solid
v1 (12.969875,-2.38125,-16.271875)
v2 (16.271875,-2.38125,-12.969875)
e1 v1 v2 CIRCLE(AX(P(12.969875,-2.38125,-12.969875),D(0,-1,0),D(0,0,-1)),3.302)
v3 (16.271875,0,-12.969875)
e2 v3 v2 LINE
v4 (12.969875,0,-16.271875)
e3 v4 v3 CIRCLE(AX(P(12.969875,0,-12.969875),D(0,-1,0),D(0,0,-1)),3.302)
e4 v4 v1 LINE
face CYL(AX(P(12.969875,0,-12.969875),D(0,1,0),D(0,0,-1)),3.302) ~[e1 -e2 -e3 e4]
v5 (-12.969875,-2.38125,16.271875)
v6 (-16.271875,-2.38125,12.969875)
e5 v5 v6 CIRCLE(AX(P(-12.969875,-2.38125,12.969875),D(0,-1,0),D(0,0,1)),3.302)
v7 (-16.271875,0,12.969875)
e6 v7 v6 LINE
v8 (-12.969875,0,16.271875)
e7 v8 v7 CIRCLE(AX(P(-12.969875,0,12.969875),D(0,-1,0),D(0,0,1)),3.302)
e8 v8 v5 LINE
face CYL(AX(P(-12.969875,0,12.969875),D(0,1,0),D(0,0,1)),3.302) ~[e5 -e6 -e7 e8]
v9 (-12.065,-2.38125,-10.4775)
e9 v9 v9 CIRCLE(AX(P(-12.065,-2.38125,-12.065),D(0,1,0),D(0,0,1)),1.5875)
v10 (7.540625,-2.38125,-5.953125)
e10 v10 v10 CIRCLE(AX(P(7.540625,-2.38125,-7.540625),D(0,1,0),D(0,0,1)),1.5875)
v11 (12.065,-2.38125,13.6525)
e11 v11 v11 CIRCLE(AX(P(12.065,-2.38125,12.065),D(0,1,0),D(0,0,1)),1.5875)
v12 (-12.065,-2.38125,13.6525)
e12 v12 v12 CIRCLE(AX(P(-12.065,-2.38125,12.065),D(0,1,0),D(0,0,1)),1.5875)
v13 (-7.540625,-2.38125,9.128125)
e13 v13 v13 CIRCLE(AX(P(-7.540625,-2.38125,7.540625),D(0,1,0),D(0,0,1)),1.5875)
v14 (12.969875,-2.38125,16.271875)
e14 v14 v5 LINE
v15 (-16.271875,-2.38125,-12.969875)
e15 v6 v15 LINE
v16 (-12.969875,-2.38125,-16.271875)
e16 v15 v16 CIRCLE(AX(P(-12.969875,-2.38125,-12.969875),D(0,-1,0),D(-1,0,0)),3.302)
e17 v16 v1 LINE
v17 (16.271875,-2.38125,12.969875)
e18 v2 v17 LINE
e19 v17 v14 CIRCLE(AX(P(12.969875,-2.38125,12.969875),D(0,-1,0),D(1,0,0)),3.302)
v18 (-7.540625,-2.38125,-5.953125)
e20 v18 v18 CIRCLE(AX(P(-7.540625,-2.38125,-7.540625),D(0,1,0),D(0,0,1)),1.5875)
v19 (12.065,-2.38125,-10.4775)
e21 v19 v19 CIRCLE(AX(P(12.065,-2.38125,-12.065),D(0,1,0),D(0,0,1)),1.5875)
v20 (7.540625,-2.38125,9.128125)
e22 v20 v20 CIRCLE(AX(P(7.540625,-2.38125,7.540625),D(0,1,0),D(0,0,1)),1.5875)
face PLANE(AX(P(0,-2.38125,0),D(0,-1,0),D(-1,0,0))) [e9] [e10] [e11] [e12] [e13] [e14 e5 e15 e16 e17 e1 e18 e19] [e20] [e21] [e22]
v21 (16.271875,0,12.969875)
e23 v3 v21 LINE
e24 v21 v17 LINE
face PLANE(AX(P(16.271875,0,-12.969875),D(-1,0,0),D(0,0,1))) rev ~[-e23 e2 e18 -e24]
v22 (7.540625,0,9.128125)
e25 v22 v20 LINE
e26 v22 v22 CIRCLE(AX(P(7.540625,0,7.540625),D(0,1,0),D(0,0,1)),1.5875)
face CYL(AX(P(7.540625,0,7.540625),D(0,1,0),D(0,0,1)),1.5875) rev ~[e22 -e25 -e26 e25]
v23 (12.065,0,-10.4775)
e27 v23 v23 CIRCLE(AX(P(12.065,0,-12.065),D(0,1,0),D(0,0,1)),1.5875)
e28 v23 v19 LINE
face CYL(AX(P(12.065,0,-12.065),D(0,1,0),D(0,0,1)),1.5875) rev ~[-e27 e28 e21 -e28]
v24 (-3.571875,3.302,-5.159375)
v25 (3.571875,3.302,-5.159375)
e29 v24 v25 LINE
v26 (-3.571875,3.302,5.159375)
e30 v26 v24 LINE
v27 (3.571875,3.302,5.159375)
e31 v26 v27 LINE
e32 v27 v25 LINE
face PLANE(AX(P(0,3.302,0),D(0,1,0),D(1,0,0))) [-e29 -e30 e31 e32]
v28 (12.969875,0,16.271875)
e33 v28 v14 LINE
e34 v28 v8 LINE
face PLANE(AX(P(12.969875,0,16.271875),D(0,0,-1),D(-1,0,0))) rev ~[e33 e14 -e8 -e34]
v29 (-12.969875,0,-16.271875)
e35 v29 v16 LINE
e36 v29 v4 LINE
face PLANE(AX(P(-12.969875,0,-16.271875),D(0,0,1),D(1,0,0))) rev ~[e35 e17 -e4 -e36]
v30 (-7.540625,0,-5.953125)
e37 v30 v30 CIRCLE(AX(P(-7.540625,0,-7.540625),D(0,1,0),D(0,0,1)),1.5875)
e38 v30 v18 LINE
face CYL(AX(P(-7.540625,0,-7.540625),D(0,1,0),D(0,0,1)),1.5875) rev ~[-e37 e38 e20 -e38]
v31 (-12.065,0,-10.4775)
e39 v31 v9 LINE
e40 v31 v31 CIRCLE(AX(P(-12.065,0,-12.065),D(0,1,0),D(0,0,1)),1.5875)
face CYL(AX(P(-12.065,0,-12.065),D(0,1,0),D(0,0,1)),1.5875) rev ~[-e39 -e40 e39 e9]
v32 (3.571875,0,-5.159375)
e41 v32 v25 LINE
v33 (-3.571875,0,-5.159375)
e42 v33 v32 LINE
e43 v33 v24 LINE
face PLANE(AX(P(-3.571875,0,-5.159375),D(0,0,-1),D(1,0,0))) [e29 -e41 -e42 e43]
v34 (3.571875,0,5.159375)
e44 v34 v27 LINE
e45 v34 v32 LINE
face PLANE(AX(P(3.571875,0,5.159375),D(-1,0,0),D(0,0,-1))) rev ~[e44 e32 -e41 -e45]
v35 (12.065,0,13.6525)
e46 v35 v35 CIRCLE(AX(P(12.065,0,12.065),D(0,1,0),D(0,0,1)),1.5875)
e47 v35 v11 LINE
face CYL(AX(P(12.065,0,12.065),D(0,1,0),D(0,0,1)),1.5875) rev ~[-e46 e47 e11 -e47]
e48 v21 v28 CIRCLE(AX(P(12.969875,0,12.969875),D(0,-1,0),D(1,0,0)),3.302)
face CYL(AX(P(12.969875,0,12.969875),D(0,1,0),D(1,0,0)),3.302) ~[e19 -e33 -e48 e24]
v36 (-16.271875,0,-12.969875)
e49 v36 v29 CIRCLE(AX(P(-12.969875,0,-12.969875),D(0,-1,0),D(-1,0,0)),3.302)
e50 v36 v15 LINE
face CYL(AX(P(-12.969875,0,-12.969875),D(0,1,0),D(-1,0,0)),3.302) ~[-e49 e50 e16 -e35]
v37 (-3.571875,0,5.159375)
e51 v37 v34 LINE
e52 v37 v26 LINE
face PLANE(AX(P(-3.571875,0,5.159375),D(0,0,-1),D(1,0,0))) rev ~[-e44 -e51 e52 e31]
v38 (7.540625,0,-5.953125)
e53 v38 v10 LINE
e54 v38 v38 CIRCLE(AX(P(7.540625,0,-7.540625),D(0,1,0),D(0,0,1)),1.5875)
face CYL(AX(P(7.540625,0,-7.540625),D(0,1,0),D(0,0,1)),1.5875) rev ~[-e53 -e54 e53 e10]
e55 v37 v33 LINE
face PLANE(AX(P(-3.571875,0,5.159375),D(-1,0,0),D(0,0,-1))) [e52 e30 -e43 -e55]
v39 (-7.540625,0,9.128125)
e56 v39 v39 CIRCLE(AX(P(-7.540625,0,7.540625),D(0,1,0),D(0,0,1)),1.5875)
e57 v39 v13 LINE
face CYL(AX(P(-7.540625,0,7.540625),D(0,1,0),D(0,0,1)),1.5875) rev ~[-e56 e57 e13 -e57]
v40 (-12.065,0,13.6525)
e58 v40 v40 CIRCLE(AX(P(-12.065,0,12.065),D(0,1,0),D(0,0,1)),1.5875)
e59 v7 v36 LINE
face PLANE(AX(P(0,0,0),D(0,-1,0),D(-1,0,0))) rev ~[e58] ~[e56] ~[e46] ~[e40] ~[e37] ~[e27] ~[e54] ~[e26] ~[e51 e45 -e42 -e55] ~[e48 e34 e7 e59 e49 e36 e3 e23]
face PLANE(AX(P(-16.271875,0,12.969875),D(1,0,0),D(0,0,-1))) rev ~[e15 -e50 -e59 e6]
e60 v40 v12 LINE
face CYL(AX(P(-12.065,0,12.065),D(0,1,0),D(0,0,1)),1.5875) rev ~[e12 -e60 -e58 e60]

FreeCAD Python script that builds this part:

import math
import FreeCAD as App
import Part
import Sketcher
Q = App.Units.Quantity


def add_polygon(sketch, points):
    """Adds a closed chain of lines whose ends are joined by coincident constraints."""
    first, n = sketch.GeometryCount, len(points)
    for a, b in zip(points, points[1:] + points[:1]):
        sketch.addGeometry(Part.LineSegment(App.Vector(*a, 0), App.Vector(*b, 0)), False)
    for i in range(n):
        sketch.addConstraint(Sketcher.Constraint("Coincident", first + i, 2, first + (i + 1) % n, 1))

doc = App.newDocument("Part")
params = doc.addObject("Spreadsheet::Sheet", "Params")
for row, (alias, value) in enumerate([
    ("sketch1_radius", "0.13 in"),
    ("pad1_length", "0.09375 in"),
    ("sketch2_width", "0.28125 in"),
    ("sketch2_height", "0.40625 in"),
    ("pad2_length", "0.13 in"),
    ("sketch3_diameter", "0.125 in"),
], start=1):
    params.set(f"A{row}", alias)
    params.set(f"B{row}", "=" + value)
    params.setAlias(f"B{row}", alias)

body = doc.addObject("PartDesign::Body", "Body")

sketch1 = body.newObject("Sketcher::SketchObject", "Sketch")
sketch1.AttachmentSupport = (doc.getObject("XZ_Plane"), [""])
sketch1.MapMode = "FlatFace"
sketch1.addGeometry(Part.LineSegment(App.Vector(-13, 16.3, 0), App.Vector(13, 16.3, 0)), False)
sketch1.addGeometry(Part.ArcOfCircle(Part.Circle(App.Vector(13, 13, 0), App.Vector(0, 0, 1), 3.3), math.radians(0), math.radians(90)), False)
sketch1.addGeometry(Part.LineSegment(App.Vector(16.3, 13, 0), App.Vector(16.3, -13, 0)), False)
sketch1.addGeometry(Part.ArcOfCircle(Part.Circle(App.Vector(13, -13, 0), App.Vector(0, 0, 1), 3.3), math.radians(-90), math.radians(0)), False)
sketch1.addGeometry(Part.LineSegment(App.Vector(13, -16.3, 0), App.Vector(-13, -16.3, 0)), False)
sketch1.addGeometry(Part.ArcOfCircle(Part.Circle(App.Vector(-13, -13, 0), App.Vector(0, 0, 1), 3.3), math.radians(-180), math.radians(-90)), False)
sketch1.addGeometry(Part.LineSegment(App.Vector(-16.3, -13, 0), App.Vector(-16.3, 13, 0)), False)
sketch1.addGeometry(Part.ArcOfCircle(Part.Circle(App.Vector(-13, 13, 0), App.Vector(0, 0, 1), 3.3), math.radians(90), math.radians(180)), False)
sketch1.addConstraint(Sketcher.Constraint("Tangent", 0, 2, 1, 2))
sketch1.addConstraint(Sketcher.Constraint("Tangent", 1, 1, 2, 1))
sketch1.addConstraint(Sketcher.Constraint("Tangent", 2, 2, 3, 2))
sketch1.addConstraint(Sketcher.Constraint("Tangent", 3, 1, 4, 1))
sketch1.addConstraint(Sketcher.Constraint("Tangent", 4, 2, 5, 2))
sketch1.addConstraint(Sketcher.Constraint("Tangent", 5, 1, 6, 1))
sketch1.addConstraint(Sketcher.Constraint("Tangent", 6, 2, 7, 2))
sketch1.addConstraint(Sketcher.Constraint("Tangent", 7, 1, 0, 1))
sketch1.addConstraint(Sketcher.Constraint("Horizontal", 0))
sketch1.addConstraint(Sketcher.Constraint("Vertical", 2))
sketch1.addConstraint(Sketcher.Constraint("Horizontal", 4))
sketch1.addConstraint(Sketcher.Constraint("Vertical", 6))
sketch1.addConstraint(Sketcher.Constraint("Equal", 1, 3))
sketch1.addConstraint(Sketcher.Constraint("Equal", 3, 5))
sketch1.addConstraint(Sketcher.Constraint("Equal", 5, 7))
sketch1.addConstraint(Sketcher.Constraint("Symmetric", 1, 3, 5, 3, -1, 1))
sketch1.addConstraint(Sketcher.Constraint("Equal", 4, 2))
sketch1.addConstraint(Sketcher.Constraint("Radius", 1, Q("0.13 in")))
sketch1.addConstraint(Sketcher.Constraint("DistanceY", -1, 1, 0, 2, Q("0.640625 in")))
sketch1.setExpression("Constraints[17]", "Params.sketch1_radius")
pad1 = body.newObject("PartDesign::Pad", "Pad")
pad1.Profile = sketch1
pad1.setExpression("Length", "Params.pad1_length")

sketch2 = body.newObject("Sketcher::SketchObject", "Sketch001")
sketch2.AttachmentSupport = (doc.getObject("XZ_Plane"), [""])
sketch2.MapMode = "FlatFace"
add_polygon(sketch2, [(-4, -5), (-4, 5), (4, 5), (4, -5)])
sketch2.addConstraint(Sketcher.Constraint("Vertical", 0))
sketch2.addConstraint(Sketcher.Constraint("Horizontal", 1))
sketch2.addConstraint(Sketcher.Constraint("Vertical", 2))
sketch2.addConstraint(Sketcher.Constraint("Horizontal", 3))
sketch2.addConstraint(Sketcher.Constraint("Symmetric", 0, 2, 2, 2, -1, 1))
sketch2.addConstraint(Sketcher.Constraint("DistanceX", 1, 1, 1, 2, Q("0.28125 in")))
sketch2.addConstraint(Sketcher.Constraint("DistanceY", 0, 1, 0, 2, Q("0.40625 in")))
sketch2.setExpression("Constraints[9]", "Params.sketch2_width")
sketch2.setExpression("Constraints[10]", "Params.sketch2_height")
pad2 = body.newObject("PartDesign::Pad", "Pad001")
pad2.Profile = sketch2
pad2.setExpression("Length", "Params.pad2_length")
pad2.Reversed = True

sketch3 = body.newObject("Sketcher::SketchObject", "Sketch002")
sketch3.AttachmentSupport = (doc.getObject("XZ_Plane"), [""])
sketch3.MapMode = "FlatFace"
sketch3.addGeometry(Part.Circle(App.Vector(-12.1, -12.1, 0), App.Vector(0, 0, 1), 1.6), False)
sketch3.addGeometry(Part.Circle(App.Vector(-7.5, 7.5, 0), App.Vector(0, 0, 1), 1.6), False)
sketch3.addGeometry(Part.Circle(App.Vector(7.5, 7.5, 0), App.Vector(0, 0, 1), 1.6), False)
sketch3.addGeometry(Part.Circle(App.Vector(12.1, 12.1, 0), App.Vector(0, 0, 1), 1.6), False)
sketch3.addGeometry(Part.Circle(App.Vector(12.1, -12.1, 0), App.Vector(0, 0, 1), 1.6), False)
sketch3.addGeometry(Part.Circle(App.Vector(-7.5, -7.5, 0), App.Vector(0, 0, 1), 1.6), False)
sketch3.addGeometry(Part.Circle(App.Vector(-12.1, 12.1, 0), App.Vector(0, 0, 1), 1.6), False)
sketch3.addGeometry(Part.Circle(App.Vector(7.5, -7.5, 0), App.Vector(0, 0, 1), 1.6), False)
sketch3.addConstraint(Sketcher.Constraint("Equal", 0, 1))
sketch3.addConstraint(Sketcher.Constraint("Equal", 1, 2))
sketch3.addConstraint(Sketcher.Constraint("Equal", 2, 3))
sketch3.addConstraint(Sketcher.Constraint("Equal", 3, 4))
sketch3.addConstraint(Sketcher.Constraint("Equal", 4, 5))
sketch3.addConstraint(Sketcher.Constraint("Equal", 5, 6))
sketch3.addConstraint(Sketcher.Constraint("Equal", 6, 7))
sketch3.addConstraint(Sketcher.Constraint("Symmetric", 0, 3, 3, 3, -1, 1))
sketch3.addConstraint(Sketcher.Constraint("Symmetric", 2, 3, 5, 3, -1, 1))
sketch3.addConstraint(Sketcher.Constraint("Symmetric", 4, 3, 6, 3, -1, 1))
sketch3.addConstraint(Sketcher.Constraint("Symmetric", 1, 3, 7, 3, -1, 1))
sketch3.addConstraint(Sketcher.Constraint("Symmetric", 1, 3, 2, 3, -2))
sketch3.addConstraint(Sketcher.Constraint("Symmetric", 0, 3, 4, 3, -2))
sketch3.addConstraint(Sketcher.Constraint("Diameter", 0, Q("0.125 in")))
sketch3.addConstraint(Sketcher.Constraint("DistanceX", 0, 3, 3, 3, Q("0.95 in")))
sketch3.addConstraint(Sketcher.Constraint("DistanceY", 0, 3, 3, 3, Q("0.95 in")))
sketch3.addConstraint(Sketcher.Constraint("DistanceX", 1, 3, -1, 1, Q("0.296875 in")))
sketch3.addConstraint(Sketcher.Constraint("DistanceY", -1, 1, 1, 3, Q("0.296875 in")))
sketch3.setExpression("Constraints[13]", "Params.sketch3_diameter")
pocket1 = body.newObject("PartDesign::Pocket", "Pocket")
pocket1.Profile = sketch3
pocket1.Type = "ThroughAll"
pocket1.Reversed = True

doc.recompute()
